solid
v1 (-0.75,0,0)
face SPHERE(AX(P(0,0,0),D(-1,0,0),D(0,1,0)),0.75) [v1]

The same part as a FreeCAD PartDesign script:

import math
import FreeCAD as App
import Part
import Sketcher
from FreeCAD import Vector

doc = App.newDocument("Part")
body = doc.addObject("PartDesign::Body", "Body")

# Sketch on XY plane
sketch1 = body.newObject("Sketcher::SketchObject", "Sketch")
sketch1.AttachmentSupport = (doc.getObject("XY_Plane"), [""])
sketch1.MapMode = "FlatFace"
sketch1.addGeometry(Part.LineSegment(Vector(0.8, 0, 0), Vector(-0.8, 0, 0)), False)
sketch1.addGeometry(Part.ArcOfCircle(Part.Circle(Vector(0, 0, 0), Vector(0, 0, 1), 0.8), math.radians(180), math.radians(360)), False)
sketch1.addConstraint(Sketcher.Constraint("Coincident", 0, 1, 1, 2))
sketch1.addConstraint(Sketcher.Constraint("Coincident", 1, 1, 0, 2))
sketch1.addConstraint(Sketcher.Constraint("Horizontal", 0))
sketch1.addConstraint(Sketcher.Constraint("Coincident", 1, 3, -1, 1))
sketch1.addConstraint(Sketcher.Constraint("PointOnObject", 0, 1, -1))
sketch1.addConstraint(Sketcher.Constraint("Radius", 1, 0.75))
revolution = body.newObject("PartDesign::Revolution", "Revolution")
revolution.Profile = sketch1
revolution.ReferenceAxis = (sketch1, ["H_Axis"])
revolution.Angle = 360

doc.recompute()
